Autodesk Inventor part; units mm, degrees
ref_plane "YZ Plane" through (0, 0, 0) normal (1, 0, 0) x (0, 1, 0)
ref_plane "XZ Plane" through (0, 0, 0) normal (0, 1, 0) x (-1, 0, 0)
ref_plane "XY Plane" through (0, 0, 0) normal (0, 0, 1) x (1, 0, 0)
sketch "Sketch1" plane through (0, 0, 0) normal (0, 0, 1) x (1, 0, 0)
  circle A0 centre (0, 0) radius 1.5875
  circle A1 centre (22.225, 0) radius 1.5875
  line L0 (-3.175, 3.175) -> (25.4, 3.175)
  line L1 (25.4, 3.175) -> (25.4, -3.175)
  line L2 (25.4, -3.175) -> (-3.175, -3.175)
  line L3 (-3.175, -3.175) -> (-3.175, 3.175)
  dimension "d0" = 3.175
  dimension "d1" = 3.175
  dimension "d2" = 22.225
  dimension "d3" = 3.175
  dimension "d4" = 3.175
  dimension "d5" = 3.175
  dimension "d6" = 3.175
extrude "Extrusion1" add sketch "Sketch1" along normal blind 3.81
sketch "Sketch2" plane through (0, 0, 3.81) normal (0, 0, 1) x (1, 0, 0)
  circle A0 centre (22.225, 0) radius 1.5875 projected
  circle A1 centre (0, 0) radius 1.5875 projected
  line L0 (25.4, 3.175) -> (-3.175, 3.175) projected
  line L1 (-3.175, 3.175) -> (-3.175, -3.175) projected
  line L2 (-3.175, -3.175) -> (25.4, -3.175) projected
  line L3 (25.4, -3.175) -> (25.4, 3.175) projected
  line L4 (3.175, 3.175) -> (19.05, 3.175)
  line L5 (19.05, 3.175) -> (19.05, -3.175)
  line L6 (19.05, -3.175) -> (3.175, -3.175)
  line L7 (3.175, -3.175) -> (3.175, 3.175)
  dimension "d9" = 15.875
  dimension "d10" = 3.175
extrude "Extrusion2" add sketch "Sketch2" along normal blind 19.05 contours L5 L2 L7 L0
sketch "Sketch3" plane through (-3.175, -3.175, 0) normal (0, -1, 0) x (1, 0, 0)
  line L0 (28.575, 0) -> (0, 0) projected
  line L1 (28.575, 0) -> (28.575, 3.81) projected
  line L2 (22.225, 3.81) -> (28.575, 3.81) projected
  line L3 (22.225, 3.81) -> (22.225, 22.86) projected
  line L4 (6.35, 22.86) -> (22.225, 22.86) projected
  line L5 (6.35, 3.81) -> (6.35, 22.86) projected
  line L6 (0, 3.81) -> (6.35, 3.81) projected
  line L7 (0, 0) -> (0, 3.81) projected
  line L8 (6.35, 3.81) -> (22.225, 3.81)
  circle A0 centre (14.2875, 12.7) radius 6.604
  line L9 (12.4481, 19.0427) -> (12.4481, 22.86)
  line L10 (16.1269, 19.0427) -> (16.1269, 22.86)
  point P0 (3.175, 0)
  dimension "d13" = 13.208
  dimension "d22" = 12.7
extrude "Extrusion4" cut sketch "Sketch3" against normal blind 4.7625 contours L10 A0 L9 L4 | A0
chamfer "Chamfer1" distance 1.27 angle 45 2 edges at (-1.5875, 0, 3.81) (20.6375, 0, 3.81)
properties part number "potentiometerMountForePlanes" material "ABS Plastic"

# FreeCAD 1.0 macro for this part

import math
import FreeCAD as App
import Part
import Sketcher
Q = App.Units.Quantity


def edges_at(feature, points):
    """Names of the edges that pass closest to the given points."""
    edges = feature.Shape.Edges
    near = lambda p: min(range(len(edges)), key=lambda i: edges[i].distToShape(Part.Vertex(*p))[0])
    return sorted({f"Edge{near(p) + 1}" for p in points})


def add_polygon(sketch, points):
    """Adds a closed chain of lines whose ends are joined by coincident constraints."""
    first, n = sketch.GeometryCount, len(points)
    for a, b in zip(points, points[1:] + points[:1]):
        sketch.addGeometry(Part.LineSegment(App.Vector(*a, 0), App.Vector(*b, 0)), False)
    for i in range(n):
        sketch.addConstraint(Sketcher.Constraint("Coincident", first + i, 2, first + (i + 1) % n, 1))

doc = App.newDocument("Part")
params = doc.addObject("Spreadsheet::Sheet", "Params")
for row, (alias, value) in enumerate([
    ("sketch1_diameter", "0.125 in"),
    ("pad1_length", "0.15 in"),
    ("sketch2_width", "0.625 in"),
    ("pad2_length", "0.75 in"),
    ("sketch3_radius", "0.26 in"),
    ("pocket1_length", "0.1875 in"),
    ("chamfer_size", "0.05 in"),
], start=1):
    params.set(f"A{row}", alias)
    params.set(f"B{row}", "=" + value)
    params.setAlias(f"B{row}", alias)

body = doc.addObject("PartDesign::Body", "Body")

# Sketch on XY plane
sketch1 = body.newObject("Sketcher::SketchObject", "Sketch")
sketch1.AttachmentSupport = (doc.getObject("XY_Plane"), [""])
sketch1.MapMode = "FlatFace"
add_polygon(sketch1, [(25.4, 3.2), (-3.2, 3.2), (-3.2, -3.2), (25.4, -3.2)])  # lines 0-3
sketch1.addGeometry(Part.Circle(App.Vector(0, 0, 0), App.Vector(0, 0, 1), 1.6), False)  # 4
sketch1.addGeometry(Part.Circle(App.Vector(22.2, 0, 0), App.Vector(0, 0, 1), 1.6), False)  # 5
sketch1.addConstraint(Sketcher.Constraint("Horizontal", 0))
sketch1.addConstraint(Sketcher.Constraint("Vertical", 1))
sketch1.addConstraint(Sketcher.Constraint("Horizontal", 2))
sketch1.addConstraint(Sketcher.Constraint("Vertical", 3))
sketch1.addConstraint(Sketcher.Constraint("Coincident", 4, 3, -1, 1))
sketch1.addConstraint(Sketcher.Constraint("Equal", 4, 5))
sketch1.addConstraint(Sketcher.Constraint("PointOnObject", 5, 3, -1))
sketch1.addConstraint(Sketcher.Constraint("Diameter", 4, Q("0.125 in")))
sketch1.addConstraint(Sketcher.Constraint("DistanceX", -1, 1, 5, 3, Q("0.875 in")))
sketch1.addConstraint(Sketcher.Constraint("DistanceX", 0, 2, -1, 1, Q("0.125 in")))
sketch1.addConstraint(Sketcher.Constraint("DistanceY", -1, 1, 0, 2, Q("0.125 in")))
sketch1.addConstraint(Sketcher.Constraint("DistanceY", 1, 2, -1, 1, Q("0.125 in")))
sketch1.addConstraint(Sketcher.Constraint("DistanceX", -1, 1, 2, 2, Q("1 in")))
sketch1.setExpression("Constraints[11]", "Params.sketch1_diameter")
pad1 = body.newObject("PartDesign::Pad", "Pad")
pad1.Profile = sketch1
pad1.setExpression("Length", "Params.pad1_length")

# Sketch on XY plane
sketch2 = body.newObject("Sketcher::SketchObject", "Sketch001")
sketch2.AttachmentSupport = (doc.getObject("XY_Plane"), [""])
sketch2.MapMode = "FlatFace"
sketch2.AttachmentOffset = App.Placement(App.Vector(0, 0, 0.15 * 25.4), App.Rotation())
add_polygon(sketch2, [(19, -3), (19, 3), (3, 3), (3, -3)])  # lines 0-3
sketch2.addConstraint(Sketcher.Constraint("Vertical", 0))
sketch2.addConstraint(Sketcher.Constraint("Horizontal", 1))
sketch2.addConstraint(Sketcher.Constraint("Vertical", 2))
sketch2.addConstraint(Sketcher.Constraint("Horizontal", 3))
sketch2.addConstraint(Sketcher.Constraint("DistanceX", 1, 2, 1, 1, Q("0.625 in")))
sketch2.addConstraint(Sketcher.Constraint("DistanceY", -1, 1, 0, 2, Q("0.125 in")))
sketch2.addConstraint(Sketcher.Constraint("DistanceX", -1, 1, 1, 2, Q("0.125 in")))
sketch2.addConstraint(Sketcher.Constraint("DistanceY", 2, 2, -1, 1, Q("0.125 in")))
sketch2.setExpression("Constraints[8]", "Params.sketch2_width")
pad2 = body.newObject("PartDesign::Pad", "Pad001")
pad2.Profile = sketch2
pad2.setExpression("Length", "Params.pad2_length")

# Sketch on XZ plane
sketch3 = body.newObject("Sketcher::SketchObject", "Sketch002")
sketch3.AttachmentSupport = (doc.getObject("XZ_Plane"), [""])
sketch3.MapMode = "FlatFace"
sketch3.AttachmentOffset = App.Placement(App.Vector(0, 0, 0.125 * 25.4), App.Rotation())
sketch3.addGeometry(Part.LineSegment(App.Vector(13, 19, 0), App.Vector(13, 22.9, 0)), False)
sketch3.addGeometry(Part.LineSegment(App.Vector(13, 22.9, 0), App.Vector(9.3, 22.9, 0)), False)
sketch3.addGeometry(Part.LineSegment(App.Vector(9.3, 22.9, 0), App.Vector(9.3, 19, 0)), False)
sketch3.addGeometry(Part.ArcOfCircle(Part.Circle(App.Vector(11.1, 12.7, 0), App.Vector(0, 0, 1), 6.6), math.radians(106), math.radians(434)), False)
sketch3.addConstraint(Sketcher.Constraint("Coincident", 0, 2, 1, 1))
sketch3.addConstraint(Sketcher.Constraint("Coincident", 1, 2, 2, 1))
sketch3.addConstraint(Sketcher.Constraint("Coincident", 2, 2, 3, 1))
sketch3.addConstraint(Sketcher.Constraint("Coincident", 3, 2, 0, 1))
sketch3.addConstraint(Sketcher.Constraint("Vertical", 0))
sketch3.addConstraint(Sketcher.Constraint("Horizontal", 1))
sketch3.addConstraint(Sketcher.Constraint("Vertical", 2))
sketch3.addConstraint(Sketcher.Constraint("Horizontal", 2, 2, 3, 2))
sketch3.addConstraint(Sketcher.Constraint("Radius", 3, Q("0.26 in")))
sketch3.addConstraint(Sketcher.Constraint("DistanceY", -1, 1, 3, 3, Q("0.5 in")))
sketch3.addConstraint(Sketcher.Constraint("DistanceY", -1, 1, 0, 2, Q("0.9 in")))
sketch3.addConstraint(Sketcher.Constraint("DistanceX", -1, 1, 3, 3, Q("0.4375 in")))
sketch3.addConstraint(Sketcher.Constraint("DistanceX", 1, 2, 1, 1, Q("3.6788 mm")))
sketch3.setExpression("Constraints[8]", "Params.sketch3_radius")
pocket1 = body.newObject("PartDesign::Pocket", "Pocket")
pocket1.Profile = sketch3
pocket1.setExpression("Length", "Params.pocket1_length")
doc.recompute()

chamfer = body.newObject("PartDesign::Chamfer", "Chamfer")
chamfer.Base = (pocket1, edges_at(pocket1, [(-1.587, 0, 3.81), (20.637, 0, 3.81)]))
chamfer.setExpression("Size", "Params.chamfer_size")

doc.recompute()
